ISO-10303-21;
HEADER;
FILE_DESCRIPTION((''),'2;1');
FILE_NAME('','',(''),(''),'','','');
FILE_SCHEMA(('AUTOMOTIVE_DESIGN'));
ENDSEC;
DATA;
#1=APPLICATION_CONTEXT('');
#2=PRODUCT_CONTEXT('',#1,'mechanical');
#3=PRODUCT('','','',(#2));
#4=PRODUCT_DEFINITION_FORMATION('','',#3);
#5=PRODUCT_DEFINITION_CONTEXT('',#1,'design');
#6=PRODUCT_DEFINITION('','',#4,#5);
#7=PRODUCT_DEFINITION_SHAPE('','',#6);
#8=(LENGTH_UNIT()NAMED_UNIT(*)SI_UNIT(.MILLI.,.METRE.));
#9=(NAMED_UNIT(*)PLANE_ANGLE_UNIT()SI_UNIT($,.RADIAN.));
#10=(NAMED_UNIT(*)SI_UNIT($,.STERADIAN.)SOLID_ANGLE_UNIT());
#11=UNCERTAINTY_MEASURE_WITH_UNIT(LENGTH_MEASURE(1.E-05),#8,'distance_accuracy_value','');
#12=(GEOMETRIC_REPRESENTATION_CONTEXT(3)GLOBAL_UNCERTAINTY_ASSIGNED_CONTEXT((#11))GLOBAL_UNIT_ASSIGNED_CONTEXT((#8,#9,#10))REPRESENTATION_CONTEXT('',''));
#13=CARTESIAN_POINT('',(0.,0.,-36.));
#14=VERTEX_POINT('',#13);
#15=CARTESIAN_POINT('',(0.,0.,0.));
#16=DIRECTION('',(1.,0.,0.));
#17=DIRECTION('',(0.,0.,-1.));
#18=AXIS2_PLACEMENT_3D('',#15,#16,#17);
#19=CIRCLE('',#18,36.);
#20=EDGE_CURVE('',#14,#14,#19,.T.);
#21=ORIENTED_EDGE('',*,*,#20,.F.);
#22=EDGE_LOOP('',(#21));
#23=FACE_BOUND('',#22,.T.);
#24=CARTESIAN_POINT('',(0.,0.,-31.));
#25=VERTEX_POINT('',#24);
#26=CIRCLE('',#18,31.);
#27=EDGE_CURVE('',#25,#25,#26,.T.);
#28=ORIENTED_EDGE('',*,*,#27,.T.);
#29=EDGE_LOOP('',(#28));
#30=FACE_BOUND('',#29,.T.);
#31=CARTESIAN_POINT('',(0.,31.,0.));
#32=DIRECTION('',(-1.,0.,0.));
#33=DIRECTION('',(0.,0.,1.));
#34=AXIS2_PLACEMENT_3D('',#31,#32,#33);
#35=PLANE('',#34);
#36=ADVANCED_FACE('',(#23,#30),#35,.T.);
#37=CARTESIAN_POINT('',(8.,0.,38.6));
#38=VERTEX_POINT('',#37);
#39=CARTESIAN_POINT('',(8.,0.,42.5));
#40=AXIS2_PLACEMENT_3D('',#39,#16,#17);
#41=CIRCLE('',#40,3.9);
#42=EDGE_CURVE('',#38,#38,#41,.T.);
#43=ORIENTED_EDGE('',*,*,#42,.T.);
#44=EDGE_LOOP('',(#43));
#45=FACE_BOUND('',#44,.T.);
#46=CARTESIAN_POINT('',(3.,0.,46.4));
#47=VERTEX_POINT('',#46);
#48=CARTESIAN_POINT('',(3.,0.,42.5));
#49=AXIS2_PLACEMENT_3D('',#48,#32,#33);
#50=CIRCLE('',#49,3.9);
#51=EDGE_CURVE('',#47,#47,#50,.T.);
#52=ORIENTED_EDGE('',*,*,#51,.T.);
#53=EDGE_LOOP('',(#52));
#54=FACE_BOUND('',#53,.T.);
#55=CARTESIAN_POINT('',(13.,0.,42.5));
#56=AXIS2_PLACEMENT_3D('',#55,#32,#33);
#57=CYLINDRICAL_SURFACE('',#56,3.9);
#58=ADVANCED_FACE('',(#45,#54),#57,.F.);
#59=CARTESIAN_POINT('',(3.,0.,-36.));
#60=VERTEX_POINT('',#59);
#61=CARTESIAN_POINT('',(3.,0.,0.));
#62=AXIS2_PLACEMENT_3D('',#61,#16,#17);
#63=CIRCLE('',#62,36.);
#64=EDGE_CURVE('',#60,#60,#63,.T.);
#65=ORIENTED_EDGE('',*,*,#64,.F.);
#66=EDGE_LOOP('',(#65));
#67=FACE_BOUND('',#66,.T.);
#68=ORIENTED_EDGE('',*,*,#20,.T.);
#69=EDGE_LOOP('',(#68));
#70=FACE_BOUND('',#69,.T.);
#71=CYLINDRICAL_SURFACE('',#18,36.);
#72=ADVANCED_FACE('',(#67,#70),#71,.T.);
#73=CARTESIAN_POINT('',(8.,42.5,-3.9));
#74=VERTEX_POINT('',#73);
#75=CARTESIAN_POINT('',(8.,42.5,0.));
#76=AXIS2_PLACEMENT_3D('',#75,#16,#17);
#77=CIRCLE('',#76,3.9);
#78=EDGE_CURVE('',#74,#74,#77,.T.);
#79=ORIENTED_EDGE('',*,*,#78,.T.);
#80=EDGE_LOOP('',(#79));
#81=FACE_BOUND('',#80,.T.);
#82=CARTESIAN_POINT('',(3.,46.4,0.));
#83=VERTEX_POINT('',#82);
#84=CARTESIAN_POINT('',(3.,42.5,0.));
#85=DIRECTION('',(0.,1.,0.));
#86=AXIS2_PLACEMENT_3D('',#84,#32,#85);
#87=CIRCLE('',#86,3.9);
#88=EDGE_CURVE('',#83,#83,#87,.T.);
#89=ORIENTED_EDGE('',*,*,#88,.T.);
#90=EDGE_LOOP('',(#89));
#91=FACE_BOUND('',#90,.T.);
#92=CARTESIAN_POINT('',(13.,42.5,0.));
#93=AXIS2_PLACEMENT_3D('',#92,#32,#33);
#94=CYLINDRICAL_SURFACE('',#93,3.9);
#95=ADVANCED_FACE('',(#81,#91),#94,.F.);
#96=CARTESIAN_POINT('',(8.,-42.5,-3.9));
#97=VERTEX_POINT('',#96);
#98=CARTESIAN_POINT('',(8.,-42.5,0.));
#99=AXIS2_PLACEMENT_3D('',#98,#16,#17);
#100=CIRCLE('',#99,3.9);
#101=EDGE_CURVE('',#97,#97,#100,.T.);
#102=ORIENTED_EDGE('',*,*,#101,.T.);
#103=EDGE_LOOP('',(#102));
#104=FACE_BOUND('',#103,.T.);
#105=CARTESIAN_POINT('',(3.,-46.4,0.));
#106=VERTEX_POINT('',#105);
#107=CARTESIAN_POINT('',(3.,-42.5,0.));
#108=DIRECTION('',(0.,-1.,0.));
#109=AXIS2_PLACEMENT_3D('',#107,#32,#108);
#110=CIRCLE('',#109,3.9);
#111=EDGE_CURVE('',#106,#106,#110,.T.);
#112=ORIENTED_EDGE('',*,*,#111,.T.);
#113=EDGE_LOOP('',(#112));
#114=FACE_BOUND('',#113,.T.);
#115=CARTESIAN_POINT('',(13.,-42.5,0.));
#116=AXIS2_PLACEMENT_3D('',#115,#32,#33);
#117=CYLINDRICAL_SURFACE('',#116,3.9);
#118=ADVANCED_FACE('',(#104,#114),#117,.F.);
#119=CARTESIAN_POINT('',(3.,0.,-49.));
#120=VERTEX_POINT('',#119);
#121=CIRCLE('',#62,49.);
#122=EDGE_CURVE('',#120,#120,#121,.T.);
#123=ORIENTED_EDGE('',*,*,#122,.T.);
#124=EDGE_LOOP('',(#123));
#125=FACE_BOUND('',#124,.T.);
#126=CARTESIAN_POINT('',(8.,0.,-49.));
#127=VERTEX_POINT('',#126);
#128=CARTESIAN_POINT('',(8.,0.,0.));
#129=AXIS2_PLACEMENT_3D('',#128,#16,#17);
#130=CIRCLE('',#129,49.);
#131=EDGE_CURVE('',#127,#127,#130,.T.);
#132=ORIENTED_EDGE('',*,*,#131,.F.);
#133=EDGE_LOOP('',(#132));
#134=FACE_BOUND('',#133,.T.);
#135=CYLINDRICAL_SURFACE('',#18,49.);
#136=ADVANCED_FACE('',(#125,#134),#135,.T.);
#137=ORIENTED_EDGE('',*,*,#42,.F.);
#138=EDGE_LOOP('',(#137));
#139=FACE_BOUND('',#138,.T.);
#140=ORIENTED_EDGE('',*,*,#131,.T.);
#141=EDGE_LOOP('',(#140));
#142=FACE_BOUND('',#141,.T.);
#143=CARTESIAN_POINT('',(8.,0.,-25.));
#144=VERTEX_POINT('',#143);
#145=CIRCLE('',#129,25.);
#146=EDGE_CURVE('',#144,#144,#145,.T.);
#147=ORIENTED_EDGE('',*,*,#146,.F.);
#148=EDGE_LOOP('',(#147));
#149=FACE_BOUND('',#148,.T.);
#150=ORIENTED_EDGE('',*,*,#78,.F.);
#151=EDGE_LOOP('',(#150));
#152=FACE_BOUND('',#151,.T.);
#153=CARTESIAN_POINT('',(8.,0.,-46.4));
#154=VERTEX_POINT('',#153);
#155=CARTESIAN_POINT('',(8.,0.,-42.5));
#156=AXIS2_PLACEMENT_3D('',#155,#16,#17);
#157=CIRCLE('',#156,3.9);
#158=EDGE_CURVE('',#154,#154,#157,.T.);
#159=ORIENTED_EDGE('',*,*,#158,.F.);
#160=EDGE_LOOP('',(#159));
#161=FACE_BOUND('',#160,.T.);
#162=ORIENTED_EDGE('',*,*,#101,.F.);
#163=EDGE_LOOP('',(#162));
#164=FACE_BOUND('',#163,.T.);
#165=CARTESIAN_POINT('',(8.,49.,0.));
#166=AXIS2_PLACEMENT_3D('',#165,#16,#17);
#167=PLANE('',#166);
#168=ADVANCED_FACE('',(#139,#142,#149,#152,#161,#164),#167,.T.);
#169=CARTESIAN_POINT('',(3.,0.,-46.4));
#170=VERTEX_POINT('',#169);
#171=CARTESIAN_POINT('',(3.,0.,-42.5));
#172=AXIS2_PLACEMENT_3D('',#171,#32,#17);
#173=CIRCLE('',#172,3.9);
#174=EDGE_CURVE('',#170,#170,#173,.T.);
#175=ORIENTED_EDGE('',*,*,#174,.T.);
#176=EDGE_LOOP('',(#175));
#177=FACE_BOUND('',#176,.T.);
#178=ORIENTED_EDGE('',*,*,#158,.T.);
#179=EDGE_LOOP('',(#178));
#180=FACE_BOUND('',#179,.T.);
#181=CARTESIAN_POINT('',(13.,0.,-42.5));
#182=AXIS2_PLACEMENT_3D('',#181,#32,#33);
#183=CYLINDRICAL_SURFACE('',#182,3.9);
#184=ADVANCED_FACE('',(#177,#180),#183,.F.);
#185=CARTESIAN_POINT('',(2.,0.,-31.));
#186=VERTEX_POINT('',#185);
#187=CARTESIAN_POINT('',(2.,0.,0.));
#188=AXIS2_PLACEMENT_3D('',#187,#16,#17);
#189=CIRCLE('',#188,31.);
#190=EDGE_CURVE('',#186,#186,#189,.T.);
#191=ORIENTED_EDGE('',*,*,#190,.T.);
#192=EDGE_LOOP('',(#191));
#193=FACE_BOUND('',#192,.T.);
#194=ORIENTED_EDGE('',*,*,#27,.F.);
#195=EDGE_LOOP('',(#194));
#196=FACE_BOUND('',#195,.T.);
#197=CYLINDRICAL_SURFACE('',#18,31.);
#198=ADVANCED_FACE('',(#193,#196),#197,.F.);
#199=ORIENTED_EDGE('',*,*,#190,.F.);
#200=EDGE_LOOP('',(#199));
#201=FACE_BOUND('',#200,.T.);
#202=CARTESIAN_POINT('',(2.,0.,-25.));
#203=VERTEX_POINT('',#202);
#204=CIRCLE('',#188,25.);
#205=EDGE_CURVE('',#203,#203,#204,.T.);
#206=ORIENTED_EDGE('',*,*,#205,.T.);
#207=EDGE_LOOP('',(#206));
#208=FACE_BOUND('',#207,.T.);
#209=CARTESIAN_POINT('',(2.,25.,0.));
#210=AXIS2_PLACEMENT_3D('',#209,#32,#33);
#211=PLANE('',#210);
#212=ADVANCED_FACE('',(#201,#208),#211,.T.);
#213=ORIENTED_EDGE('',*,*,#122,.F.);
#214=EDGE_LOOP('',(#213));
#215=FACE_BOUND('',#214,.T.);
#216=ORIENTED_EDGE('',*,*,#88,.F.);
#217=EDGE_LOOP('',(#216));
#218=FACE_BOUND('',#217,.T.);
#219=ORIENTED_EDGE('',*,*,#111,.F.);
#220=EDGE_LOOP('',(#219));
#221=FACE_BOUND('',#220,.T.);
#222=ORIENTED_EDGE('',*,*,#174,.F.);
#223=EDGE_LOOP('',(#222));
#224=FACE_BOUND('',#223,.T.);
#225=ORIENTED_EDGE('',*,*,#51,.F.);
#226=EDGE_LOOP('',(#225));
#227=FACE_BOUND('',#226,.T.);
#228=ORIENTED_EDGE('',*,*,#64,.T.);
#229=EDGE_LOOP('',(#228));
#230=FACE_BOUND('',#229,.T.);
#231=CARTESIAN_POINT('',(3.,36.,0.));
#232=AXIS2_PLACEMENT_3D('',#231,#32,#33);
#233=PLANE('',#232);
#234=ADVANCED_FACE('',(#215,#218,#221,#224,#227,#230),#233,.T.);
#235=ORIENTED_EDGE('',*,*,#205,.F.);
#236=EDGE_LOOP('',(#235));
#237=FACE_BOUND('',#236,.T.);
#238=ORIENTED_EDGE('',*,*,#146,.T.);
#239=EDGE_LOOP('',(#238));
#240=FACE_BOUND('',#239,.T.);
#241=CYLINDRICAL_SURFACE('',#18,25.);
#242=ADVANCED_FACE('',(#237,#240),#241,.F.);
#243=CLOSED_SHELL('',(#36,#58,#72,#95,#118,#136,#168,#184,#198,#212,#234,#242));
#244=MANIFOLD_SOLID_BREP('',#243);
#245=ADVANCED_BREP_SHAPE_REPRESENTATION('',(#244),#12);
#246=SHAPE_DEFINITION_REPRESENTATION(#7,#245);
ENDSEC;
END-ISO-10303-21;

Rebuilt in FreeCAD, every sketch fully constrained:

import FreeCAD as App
import Part
import Sketcher
from FreeCAD import Vector

doc = App.newDocument("Part")
body = doc.addObject("PartDesign::Body", "Body")

# Sketch on XY plane
sketch1 = doc.addObject("Sketcher::SketchObject", "Sketch")
body.addObject(sketch1)
sketch1.AttachmentSupport = (doc.XY_Plane, [""])
sketch1.MapMode = "FlatFace"
sketch1.addGeometry(Part.LineSegment(Vector(0, 36, 0), Vector(0, 31, 0)), False)
sketch1.addGeometry(Part.LineSegment(Vector(0, 31, 0), Vector(2, 31, 0)), False)
sketch1.addGeometry(Part.LineSegment(Vector(2, 31, 0), Vector(2, 25, 0)), False)
sketch1.addGeometry(Part.LineSegment(Vector(2, 25, 0), Vector(8, 25, 0)), False)
sketch1.addGeometry(Part.LineSegment(Vector(8, 25, 0), Vector(8, 49, 0)), False)
sketch1.addGeometry(Part.LineSegment(Vector(8, 49, 0), Vector(3, 49, 0)), False)
sketch1.addGeometry(Part.LineSegment(Vector(3, 49, 0), Vector(3, 36, 0)), False)
sketch1.addGeometry(Part.LineSegment(Vector(3, 36, 0), Vector(0, 36, 0)), False)
sketch1.addConstraint(Sketcher.Constraint("Coincident", 0, 2, 1, 1))
sketch1.addConstraint(Sketcher.Constraint("Coincident", 1, 2, 2, 1))
sketch1.addConstraint(Sketcher.Constraint("Coincident", 2, 2, 3, 1))
sketch1.addConstraint(Sketcher.Constraint("Coincident", 3, 2, 4, 1))
sketch1.addConstraint(Sketcher.Constraint("Coincident", 4, 2, 5, 1))
sketch1.addConstraint(Sketcher.Constraint("Coincident", 5, 2, 6, 1))
sketch1.addConstraint(Sketcher.Constraint("Coincident", 6, 2, 7, 1))
sketch1.addConstraint(Sketcher.Constraint("Coincident", 7, 2, 0, 1))
sketch1.addConstraint(Sketcher.Constraint("Vertical", 0))
sketch1.addConstraint(Sketcher.Constraint("Horizontal", 1))
sketch1.addConstraint(Sketcher.Constraint("Vertical", 2))
sketch1.addConstraint(Sketcher.Constraint("Horizontal", 3))
sketch1.addConstraint(Sketcher.Constraint("Vertical", 4))
sketch1.addConstraint(Sketcher.Constraint("Horizontal", 5))
sketch1.addConstraint(Sketcher.Constraint("Vertical", 6))
sketch1.addConstraint(Sketcher.Constraint("Horizontal", 7))
sketch1.addConstraint(Sketcher.Constraint("PointOnObject", 0, 2, -2))
sketch1.addConstraint(Sketcher.Constraint("Equal", 5, 0))
sketch1.addConstraint(Sketcher.Constraint("Equal", 3, 2))
sketch1.addConstraint(Sketcher.Constraint("DistanceX", 1, 1, 1, 2, 2.0))
sketch1.addConstraint(Sketcher.Constraint("DistanceX", 3, 1, 3, 2, 6.0))
sketch1.addConstraint(Sketcher.Constraint("DistanceX", 5, 2, 5, 1, 5.0))
sketch1.addConstraint(Sketcher.Constraint("DistanceY", 4, 1, 4, 2, 24.0))
sketch1.addConstraint(Sketcher.Constraint("DistanceY", -1, 1, 0, 2, 31.0))
revolution = doc.addObject("PartDesign::Revolution", "Revolution")
body.addObject(revolution)
revolution.Profile = sketch1
revolution.ReferenceAxis = (sketch1, ["H_Axis"])
revolution.Angle = 360

# Sketch on YZ plane
sketch2 = doc.addObject("Sketcher::SketchObject", "Sketch001")
body.addObject(sketch2)
sketch2.AttachmentSupport = (doc.YZ_Plane, [""])
sketch2.MapMode = "FlatFace"
sketch2.AttachmentOffset = App.Placement(Vector(0, 0, 3), App.Rotation())
sketch2.addGeometry(Part.Circle(Vector(0, 42.5, 0), Vector(0, 0, 1), 3.9), False)
sketch2.addConstraint(Sketcher.Constraint("PointOnObject", 0, 3, -2))
sketch2.addConstraint(Sketcher.Constraint("Diameter", 0, 7.8))
sketch2.addConstraint(Sketcher.Constraint("DistanceY", -1, 1, 0, 3, 42.5))
pocket1 = doc.addObject("PartDesign::Pocket", "Pocket")
body.addObject(pocket1)
pocket1.Profile = sketch2
pocket1.Length = 10
pocket1.Reversed = True
doc.recompute()

polarpattern = doc.addObject("PartDesign::PolarPattern", "PolarPattern")
body.addObject(polarpattern)
polarpattern.Originals = [pocket1]
polarpattern.Axis = (doc.X_Axis, [""])
polarpattern.Angle = 360
polarpattern.Occurrences = 4
body.Tip = polarpattern

doc.recompute()
